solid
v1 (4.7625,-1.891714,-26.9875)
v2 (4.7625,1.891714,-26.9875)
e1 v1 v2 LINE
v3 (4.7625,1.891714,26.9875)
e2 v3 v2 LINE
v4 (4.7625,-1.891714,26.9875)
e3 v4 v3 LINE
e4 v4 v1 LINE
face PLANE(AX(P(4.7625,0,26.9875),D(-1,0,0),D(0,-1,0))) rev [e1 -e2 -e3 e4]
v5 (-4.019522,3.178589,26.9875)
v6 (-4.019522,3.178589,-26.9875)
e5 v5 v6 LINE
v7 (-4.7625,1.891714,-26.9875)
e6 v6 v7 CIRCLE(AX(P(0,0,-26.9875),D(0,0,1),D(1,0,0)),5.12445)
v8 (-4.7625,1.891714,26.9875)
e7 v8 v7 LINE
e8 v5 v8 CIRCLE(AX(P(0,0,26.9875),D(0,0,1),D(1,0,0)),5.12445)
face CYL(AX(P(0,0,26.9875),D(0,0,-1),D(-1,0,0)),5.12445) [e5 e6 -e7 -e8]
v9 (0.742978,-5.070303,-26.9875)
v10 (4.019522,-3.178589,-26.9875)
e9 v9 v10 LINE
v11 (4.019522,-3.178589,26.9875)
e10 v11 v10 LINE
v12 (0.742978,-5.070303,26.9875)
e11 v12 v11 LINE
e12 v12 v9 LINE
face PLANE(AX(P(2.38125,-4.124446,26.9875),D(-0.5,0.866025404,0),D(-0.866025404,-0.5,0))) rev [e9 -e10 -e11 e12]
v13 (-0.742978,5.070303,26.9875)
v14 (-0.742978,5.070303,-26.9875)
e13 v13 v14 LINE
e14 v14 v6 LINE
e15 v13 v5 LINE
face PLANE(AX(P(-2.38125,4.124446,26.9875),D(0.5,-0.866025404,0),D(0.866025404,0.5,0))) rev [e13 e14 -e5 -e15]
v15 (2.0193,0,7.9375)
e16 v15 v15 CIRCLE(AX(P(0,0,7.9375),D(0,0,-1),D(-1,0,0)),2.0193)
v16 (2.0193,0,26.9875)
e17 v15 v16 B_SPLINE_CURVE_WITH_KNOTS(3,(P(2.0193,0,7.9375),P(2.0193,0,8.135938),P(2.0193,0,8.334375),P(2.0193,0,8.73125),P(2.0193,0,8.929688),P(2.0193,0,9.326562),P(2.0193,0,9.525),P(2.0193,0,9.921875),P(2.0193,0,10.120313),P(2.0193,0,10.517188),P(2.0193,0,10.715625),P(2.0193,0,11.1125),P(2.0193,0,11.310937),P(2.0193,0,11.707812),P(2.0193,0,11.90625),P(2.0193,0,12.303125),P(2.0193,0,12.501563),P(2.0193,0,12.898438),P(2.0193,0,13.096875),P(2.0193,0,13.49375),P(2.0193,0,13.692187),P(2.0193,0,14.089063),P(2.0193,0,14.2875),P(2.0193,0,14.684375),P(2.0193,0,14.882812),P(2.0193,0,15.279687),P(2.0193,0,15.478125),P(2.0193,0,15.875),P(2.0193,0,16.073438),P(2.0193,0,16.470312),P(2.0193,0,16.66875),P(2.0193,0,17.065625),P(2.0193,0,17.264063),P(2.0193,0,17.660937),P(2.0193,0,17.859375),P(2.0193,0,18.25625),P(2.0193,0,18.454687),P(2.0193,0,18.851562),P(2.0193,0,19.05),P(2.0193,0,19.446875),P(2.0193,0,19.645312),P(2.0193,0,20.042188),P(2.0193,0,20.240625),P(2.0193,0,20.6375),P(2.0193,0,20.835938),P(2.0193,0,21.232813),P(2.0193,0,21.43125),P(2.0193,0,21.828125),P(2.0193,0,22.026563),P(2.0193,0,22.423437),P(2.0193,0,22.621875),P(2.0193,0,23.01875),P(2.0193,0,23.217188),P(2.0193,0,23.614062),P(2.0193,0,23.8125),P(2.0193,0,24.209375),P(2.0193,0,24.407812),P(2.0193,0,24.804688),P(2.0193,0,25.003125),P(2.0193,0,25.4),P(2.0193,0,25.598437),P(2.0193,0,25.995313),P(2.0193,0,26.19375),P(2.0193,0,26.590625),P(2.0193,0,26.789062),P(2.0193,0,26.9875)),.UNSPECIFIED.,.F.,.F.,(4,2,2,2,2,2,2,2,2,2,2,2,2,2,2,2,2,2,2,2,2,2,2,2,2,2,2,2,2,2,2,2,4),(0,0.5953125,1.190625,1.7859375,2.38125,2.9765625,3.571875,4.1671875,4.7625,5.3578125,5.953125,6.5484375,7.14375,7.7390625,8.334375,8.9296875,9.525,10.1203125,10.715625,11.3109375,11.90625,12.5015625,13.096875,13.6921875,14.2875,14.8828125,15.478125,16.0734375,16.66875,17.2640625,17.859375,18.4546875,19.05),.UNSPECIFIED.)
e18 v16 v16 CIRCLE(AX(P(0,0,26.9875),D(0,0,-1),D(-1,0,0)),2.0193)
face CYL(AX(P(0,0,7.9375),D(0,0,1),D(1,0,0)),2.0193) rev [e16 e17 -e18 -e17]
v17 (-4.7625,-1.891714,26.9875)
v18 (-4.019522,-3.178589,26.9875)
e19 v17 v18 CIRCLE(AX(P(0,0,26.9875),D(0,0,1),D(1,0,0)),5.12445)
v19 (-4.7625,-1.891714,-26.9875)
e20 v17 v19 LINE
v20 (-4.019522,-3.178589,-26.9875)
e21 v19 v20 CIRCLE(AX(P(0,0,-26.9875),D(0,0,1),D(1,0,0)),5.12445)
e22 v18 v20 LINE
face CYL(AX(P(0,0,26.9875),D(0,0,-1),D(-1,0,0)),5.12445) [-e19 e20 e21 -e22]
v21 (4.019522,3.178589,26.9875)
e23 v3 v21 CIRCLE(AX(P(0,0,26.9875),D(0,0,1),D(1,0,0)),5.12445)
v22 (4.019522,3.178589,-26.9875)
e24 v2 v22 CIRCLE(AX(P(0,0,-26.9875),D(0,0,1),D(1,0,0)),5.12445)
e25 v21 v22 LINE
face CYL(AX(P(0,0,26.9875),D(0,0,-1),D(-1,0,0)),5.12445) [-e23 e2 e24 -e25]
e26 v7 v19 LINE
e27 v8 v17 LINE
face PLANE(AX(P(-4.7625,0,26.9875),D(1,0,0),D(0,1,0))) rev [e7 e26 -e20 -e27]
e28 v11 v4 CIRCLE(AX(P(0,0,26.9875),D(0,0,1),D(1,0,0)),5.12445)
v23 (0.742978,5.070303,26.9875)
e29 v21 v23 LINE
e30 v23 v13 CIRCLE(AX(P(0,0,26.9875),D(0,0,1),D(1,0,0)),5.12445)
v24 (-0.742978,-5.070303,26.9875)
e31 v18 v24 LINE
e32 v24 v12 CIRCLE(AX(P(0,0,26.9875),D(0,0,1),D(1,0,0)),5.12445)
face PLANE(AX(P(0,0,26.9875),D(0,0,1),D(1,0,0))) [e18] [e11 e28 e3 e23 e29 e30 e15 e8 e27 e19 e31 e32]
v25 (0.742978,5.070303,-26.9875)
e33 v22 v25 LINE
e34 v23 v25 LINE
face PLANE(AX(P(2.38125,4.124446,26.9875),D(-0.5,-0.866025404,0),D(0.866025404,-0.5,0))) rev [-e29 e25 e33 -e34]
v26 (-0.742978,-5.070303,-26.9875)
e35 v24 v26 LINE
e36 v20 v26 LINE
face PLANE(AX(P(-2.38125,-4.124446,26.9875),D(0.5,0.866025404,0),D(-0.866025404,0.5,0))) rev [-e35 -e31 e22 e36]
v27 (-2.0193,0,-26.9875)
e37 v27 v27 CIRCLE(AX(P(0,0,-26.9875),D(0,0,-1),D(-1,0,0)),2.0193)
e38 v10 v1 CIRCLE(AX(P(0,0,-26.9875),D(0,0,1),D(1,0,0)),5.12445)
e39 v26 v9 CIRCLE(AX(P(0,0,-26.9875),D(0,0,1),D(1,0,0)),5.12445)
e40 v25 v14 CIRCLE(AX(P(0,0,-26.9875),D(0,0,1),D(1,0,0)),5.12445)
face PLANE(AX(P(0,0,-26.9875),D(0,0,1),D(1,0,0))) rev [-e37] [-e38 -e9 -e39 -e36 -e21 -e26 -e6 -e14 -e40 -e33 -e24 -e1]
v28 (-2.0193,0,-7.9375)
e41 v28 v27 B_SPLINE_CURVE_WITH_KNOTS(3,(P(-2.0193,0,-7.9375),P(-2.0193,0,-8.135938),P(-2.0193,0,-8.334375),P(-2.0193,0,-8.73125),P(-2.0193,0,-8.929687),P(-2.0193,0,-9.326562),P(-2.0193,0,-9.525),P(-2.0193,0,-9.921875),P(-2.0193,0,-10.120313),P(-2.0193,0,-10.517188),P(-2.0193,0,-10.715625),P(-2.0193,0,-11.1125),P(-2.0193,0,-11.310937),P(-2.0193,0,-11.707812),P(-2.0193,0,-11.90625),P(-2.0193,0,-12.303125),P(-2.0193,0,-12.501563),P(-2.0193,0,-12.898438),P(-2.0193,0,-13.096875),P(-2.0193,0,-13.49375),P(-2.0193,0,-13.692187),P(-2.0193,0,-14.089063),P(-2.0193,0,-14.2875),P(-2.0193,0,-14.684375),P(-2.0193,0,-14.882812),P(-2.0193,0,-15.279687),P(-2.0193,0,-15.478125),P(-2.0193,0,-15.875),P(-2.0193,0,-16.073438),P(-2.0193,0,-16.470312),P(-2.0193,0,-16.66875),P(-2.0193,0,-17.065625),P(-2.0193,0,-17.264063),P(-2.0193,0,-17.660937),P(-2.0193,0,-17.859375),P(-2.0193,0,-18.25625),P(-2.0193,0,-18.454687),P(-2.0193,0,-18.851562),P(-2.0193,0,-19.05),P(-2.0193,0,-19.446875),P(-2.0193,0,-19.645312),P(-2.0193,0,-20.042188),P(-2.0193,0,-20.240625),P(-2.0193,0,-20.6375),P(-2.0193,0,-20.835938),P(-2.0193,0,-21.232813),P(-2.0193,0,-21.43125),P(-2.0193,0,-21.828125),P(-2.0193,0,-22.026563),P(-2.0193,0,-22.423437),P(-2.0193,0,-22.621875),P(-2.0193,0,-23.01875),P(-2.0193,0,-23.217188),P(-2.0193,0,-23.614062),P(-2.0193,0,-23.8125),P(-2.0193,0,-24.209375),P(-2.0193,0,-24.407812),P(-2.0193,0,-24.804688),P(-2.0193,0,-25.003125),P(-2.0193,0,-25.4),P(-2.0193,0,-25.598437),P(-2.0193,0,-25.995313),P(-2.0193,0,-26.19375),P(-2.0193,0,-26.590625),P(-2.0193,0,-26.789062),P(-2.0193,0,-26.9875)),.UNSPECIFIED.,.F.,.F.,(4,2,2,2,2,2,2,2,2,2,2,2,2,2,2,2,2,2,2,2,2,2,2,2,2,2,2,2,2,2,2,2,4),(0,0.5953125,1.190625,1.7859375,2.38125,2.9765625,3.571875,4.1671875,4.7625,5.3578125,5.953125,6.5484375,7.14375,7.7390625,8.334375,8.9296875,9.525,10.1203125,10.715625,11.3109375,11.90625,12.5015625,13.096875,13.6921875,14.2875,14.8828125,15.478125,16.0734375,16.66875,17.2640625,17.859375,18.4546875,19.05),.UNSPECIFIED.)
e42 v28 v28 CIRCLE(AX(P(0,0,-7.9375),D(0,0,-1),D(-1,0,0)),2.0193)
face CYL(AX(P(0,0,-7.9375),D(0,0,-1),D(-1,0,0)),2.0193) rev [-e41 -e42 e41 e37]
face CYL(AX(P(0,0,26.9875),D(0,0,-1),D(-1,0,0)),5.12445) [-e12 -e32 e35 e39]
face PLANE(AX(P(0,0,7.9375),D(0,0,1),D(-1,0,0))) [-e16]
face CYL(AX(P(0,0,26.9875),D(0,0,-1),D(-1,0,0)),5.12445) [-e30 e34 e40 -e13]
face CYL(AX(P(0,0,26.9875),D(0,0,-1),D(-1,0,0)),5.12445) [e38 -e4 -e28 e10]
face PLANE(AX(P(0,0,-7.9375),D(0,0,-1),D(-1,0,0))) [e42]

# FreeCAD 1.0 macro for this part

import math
import FreeCAD as App
import Part
import Sketcher
Q = App.Units.Quantity

doc = App.newDocument("Part")
body = doc.addObject("PartDesign::Body", "Body")

sketch1 = body.newObject("Sketcher::SketchObject", "Sketch")
sketch1.AttachmentSupport = (doc.getObject("XY_Plane"), [""])
sketch1.MapMode = "FlatFace"
sketch1.addGeometry([
    Part.ArcOfCircle(Part.Circle(App.Vector(0, 0, 0), App.Vector(0, 0, 1), 5.1), math.radians(21.66), math.radians(38.34)),
    Part.LineSegment(App.Vector(4, 3.2, 0), App.Vector(0.7, 5.1, 0)),
    Part.ArcOfCircle(Part.Circle(App.Vector(0, 0, 0), App.Vector(0, 0, 1), 5.1), math.radians(81.66), math.radians(98.34)),
    Part.LineSegment(App.Vector(-0.7, 5.1, 0), App.Vector(-4, 3.2, 0)),
    Part.ArcOfCircle(Part.Circle(App.Vector(0, 0, 0), App.Vector(0, 0, 1), 5.1), math.radians(141.66), math.radians(158.34)),
    Part.LineSegment(App.Vector(-4.8, 1.9, 0), App.Vector(-4.8, -1.9, 0)),
    Part.ArcOfCircle(Part.Circle(App.Vector(0, 0, 0), App.Vector(0, 0, 1), 5.1), math.radians(-158.34), math.radians(-141.66)),
    Part.LineSegment(App.Vector(-4, -3.2, 0), App.Vector(-0.7, -5.1, 0)),
    Part.ArcOfCircle(Part.Circle(App.Vector(0, 0, 0), App.Vector(0, 0, 1), 5.1), math.radians(-98.34), math.radians(-81.66)),
    Part.LineSegment(App.Vector(0.7, -5.1, 0), App.Vector(4, -3.2, 0)),
    Part.ArcOfCircle(Part.Circle(App.Vector(0, 0, 0), App.Vector(0, 0, 1), 5.1), math.radians(-38.34), math.radians(-21.66)),
    Part.LineSegment(App.Vector(4.8, -1.9, 0), App.Vector(4.8, 1.9, 0)),
], False)
sketch1.addConstraint([
    Sketcher.Constraint("Coincident", 0, 2, 1, 1),
    Sketcher.Constraint("Coincident", 1, 2, 2, 1),
    Sketcher.Constraint("Coincident", 2, 2, 3, 1),
    Sketcher.Constraint("Coincident", 3, 2, 4, 1),
    Sketcher.Constraint("Coincident", 4, 2, 5, 1),
    Sketcher.Constraint("Coincident", 5, 2, 6, 1),
    Sketcher.Constraint("Coincident", 6, 2, 7, 1),
    Sketcher.Constraint("Coincident", 7, 2, 8, 1),
    Sketcher.Constraint("Coincident", 8, 2, 9, 1),
    Sketcher.Constraint("Coincident", 9, 2, 10, 1),
    Sketcher.Constraint("Coincident", 10, 2, 11, 1),
    Sketcher.Constraint("Coincident", 11, 2, 0, 1),
    Sketcher.Constraint("Vertical", 5),
    Sketcher.Constraint("Vertical", 11),
    Sketcher.Constraint("Coincident", 0, 3, -1, 1),
    Sketcher.Constraint("Coincident", 2, 3, -1, 1),
    Sketcher.Constraint("Coincident", 4, 3, -1, 1),
    Sketcher.Constraint("Coincident", 6, 3, -1, 1),
    Sketcher.Constraint("Coincident", 8, 3, -1, 1),
    Sketcher.Constraint("Coincident", 10, 3, -1, 1),
    Sketcher.Constraint("Equal", 0, 2),
    Sketcher.Constraint("Equal", 2, 4),
    Sketcher.Constraint("Equal", 4, 6),
    Sketcher.Constraint("Equal", 6, 8),
    Sketcher.Constraint("Equal", 8, 10),
    Sketcher.Constraint("Parallel", 1, 7),
    Sketcher.Constraint("Parallel", 3, 9),
    Sketcher.Constraint("Horizontal", 1, 2, 2, 2),
    Sketcher.Constraint("Horizontal", 0, 2, 3, 2),
    Sketcher.Constraint("Horizontal", 7, 2, 8, 2),
    Sketcher.Constraint("Horizontal", 5, 2, 10, 2),
    Sketcher.Constraint("Vertical", 3, 2, 6, 2),
    Sketcher.Constraint("Angle", 1, Q("150 deg")),
    Sketcher.Constraint("DistanceX", 4, 2, -1, 1, Q("0.1875 in")),
    Sketcher.Constraint("Radius", 0, 5.12445),
    Sketcher.Constraint("DistanceX", 2, 2, 0, 2, Q("0.1875 in")),
])
pad1 = body.newObject("PartDesign::Pad", "Pad")
pad1.Profile = sketch1
pad1.Length = Q("2.125 in")
pad1.Midplane = True

sketch2 = body.newObject("Sketcher::SketchObject", "Sketch001")
sketch2.AttachmentSupport = (doc.getObject("XY_Plane"), [""])
sketch2.MapMode = "FlatFace"
sketch2.AttachmentOffset = App.Placement(App.Vector(0, 0, -1.0625 * 25.4), App.Rotation())
sketch2.addGeometry(Part.Circle(App.Vector(0, 0, 0), App.Vector(0, 0, 1), 2), False)
sketch2.addConstraint([
    Sketcher.Constraint("Coincident", 0, 3, -1, 1),
    Sketcher.Constraint("Diameter", 0, Q("0.159 in")),
])
pocket1 = body.newObject("PartDesign::Pocket", "Pocket")
pocket1.Profile = sketch2
pocket1.Length = Q("0.75 in")
pocket1.Reversed = True
doc.recompute()

mirrored = body.newObject("PartDesign::Mirrored", "Mirrored")
mirrored.Originals = [pocket1]
mirrored.MirrorPlane = (doc.getObject("XY_Plane"), [""])
body.Tip = mirrored

doc.recompute()
